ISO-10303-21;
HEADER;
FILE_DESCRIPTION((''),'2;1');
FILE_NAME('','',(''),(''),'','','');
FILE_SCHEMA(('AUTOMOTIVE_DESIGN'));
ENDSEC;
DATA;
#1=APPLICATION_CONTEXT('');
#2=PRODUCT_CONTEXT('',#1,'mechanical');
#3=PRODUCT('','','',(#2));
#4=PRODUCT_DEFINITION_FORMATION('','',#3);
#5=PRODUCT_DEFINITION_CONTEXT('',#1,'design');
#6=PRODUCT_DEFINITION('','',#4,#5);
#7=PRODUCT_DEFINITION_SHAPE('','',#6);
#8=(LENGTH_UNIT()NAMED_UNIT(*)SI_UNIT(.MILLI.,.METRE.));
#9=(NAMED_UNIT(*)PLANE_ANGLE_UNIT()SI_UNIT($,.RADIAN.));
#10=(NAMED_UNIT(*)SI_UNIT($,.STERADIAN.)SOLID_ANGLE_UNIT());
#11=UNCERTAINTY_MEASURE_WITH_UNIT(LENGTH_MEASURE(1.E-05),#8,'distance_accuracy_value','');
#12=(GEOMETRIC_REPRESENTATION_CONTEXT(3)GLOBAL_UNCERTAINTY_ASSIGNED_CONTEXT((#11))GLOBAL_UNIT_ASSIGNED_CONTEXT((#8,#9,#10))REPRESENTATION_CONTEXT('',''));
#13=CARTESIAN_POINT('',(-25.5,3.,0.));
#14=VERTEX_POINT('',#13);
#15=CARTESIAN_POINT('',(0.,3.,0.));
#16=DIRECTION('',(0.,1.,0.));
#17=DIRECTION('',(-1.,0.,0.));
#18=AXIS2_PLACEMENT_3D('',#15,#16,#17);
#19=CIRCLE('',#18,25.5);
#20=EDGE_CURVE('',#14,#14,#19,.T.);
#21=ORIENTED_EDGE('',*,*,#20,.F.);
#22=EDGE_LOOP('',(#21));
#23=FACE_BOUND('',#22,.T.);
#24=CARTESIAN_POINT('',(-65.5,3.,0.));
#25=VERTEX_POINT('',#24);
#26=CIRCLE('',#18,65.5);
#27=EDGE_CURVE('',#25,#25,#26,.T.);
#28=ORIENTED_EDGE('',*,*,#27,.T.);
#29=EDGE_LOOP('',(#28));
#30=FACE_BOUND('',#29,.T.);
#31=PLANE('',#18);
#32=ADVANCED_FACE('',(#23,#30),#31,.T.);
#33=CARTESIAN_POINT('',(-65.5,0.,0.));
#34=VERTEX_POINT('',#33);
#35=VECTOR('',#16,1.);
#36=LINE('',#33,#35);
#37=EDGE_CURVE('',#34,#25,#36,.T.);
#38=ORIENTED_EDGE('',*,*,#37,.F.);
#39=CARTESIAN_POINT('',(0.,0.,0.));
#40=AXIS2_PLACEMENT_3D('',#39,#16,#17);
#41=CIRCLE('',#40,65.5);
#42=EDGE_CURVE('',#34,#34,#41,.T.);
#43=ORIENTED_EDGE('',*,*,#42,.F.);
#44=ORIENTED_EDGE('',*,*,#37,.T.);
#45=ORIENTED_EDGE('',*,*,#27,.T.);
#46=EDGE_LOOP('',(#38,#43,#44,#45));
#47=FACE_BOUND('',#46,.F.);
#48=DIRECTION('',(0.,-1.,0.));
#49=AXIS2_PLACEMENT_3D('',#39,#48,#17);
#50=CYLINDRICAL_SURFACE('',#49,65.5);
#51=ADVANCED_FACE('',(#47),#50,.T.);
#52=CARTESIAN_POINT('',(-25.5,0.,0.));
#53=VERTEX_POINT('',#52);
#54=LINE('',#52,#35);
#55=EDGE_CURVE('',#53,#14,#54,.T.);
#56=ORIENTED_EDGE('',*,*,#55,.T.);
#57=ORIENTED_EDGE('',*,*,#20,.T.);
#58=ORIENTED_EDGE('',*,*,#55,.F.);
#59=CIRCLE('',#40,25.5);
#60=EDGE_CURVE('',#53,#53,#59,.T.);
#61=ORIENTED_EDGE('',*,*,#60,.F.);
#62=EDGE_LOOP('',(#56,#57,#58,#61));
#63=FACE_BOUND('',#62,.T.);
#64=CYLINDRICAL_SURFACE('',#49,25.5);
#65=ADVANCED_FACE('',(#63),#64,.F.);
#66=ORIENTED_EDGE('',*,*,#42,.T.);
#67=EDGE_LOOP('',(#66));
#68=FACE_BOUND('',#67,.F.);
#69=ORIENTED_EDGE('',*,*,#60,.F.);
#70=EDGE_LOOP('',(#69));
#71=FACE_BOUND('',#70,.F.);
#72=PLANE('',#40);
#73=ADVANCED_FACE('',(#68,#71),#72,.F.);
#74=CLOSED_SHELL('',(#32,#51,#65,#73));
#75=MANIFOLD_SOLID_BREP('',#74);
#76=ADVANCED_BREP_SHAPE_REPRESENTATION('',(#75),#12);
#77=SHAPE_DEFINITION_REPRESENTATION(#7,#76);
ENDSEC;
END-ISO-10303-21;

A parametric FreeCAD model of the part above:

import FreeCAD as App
import Part
import Sketcher

doc = App.newDocument("Part")
params = doc.addObject("Spreadsheet::Sheet", "Params")
for row, (alias, value) in enumerate([
    ("sketch1_diameter", "51 mm"),
    ("sketch1_diameter2", "131 mm"),
    ("pad1_length", "3 mm"),
], start=1):
    params.set(f"A{row}", alias)
    params.set(f"B{row}", "=" + value)
    params.setAlias(f"B{row}", alias)

body = doc.addObject("PartDesign::Body", "Body")

sketch1 = doc.addObject("Sketcher::SketchObject", "Sketch")
body.addObject(sketch1)
sketch1.AttachmentSupport = (doc.XZ_Plane, [""])
sketch1.MapMode = "FlatFace"
sketch1.addGeometry(Part.Circle(App.Vector(0, 0, 0), App.Vector(0, 0, 1), 66), False)
sketch1.addGeometry(Part.Circle(App.Vector(0, 0, 0), App.Vector(0, 0, 1), 26), False)
sketch1.addConstraint(Sketcher.Constraint("Coincident", 0, 3, -1, 1))
sketch1.addConstraint(Sketcher.Constraint("Coincident", 1, 3, -1, 1))
sketch1.addConstraint(Sketcher.Constraint("Diameter", 1, 51.0))
sketch1.addConstraint(Sketcher.Constraint("Diameter", 0, 131.0))
sketch1.setExpression("Constraints[2]", "Params.sketch1_diameter")
sketch1.setExpression("Constraints[3]", "Params.sketch1_diameter2")
pad1 = doc.addObject("PartDesign::Pad", "Pad")
body.addObject(pad1)
pad1.Profile = sketch1
pad1.setExpression("Length", "Params.pad1_length")
pad1.Reversed = True

doc.recompute()
